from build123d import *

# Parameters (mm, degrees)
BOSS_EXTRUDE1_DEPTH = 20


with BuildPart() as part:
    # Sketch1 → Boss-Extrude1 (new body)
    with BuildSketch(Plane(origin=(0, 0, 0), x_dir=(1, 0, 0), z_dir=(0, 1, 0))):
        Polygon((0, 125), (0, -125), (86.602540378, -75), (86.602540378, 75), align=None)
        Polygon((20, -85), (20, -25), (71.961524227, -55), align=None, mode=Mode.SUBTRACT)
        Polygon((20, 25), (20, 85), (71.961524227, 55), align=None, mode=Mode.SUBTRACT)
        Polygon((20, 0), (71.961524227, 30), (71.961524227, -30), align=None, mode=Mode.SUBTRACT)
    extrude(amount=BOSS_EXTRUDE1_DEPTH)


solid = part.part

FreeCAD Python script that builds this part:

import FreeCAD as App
import Part
import Sketcher
Q = App.Units.Quantity

doc = App.newDocument("Part")
params = doc.addObject("Spreadsheet::Sheet", "Params")
for row, (alias, value) in enumerate([
    ("sketch1_height", "250 mm"),
    ("sketch1_height2", "150 mm"),
    ("sketch1_height3", "60 mm"),
    ("pad1_length", "20 mm"),
], start=1):
    params.set(f"A{row}", alias)
    params.set(f"B{row}", "=" + value)
    params.setAlias(f"B{row}", alias)

body = doc.addObject("PartDesign::Body", "Body")

sketch1 = doc.addObject("Sketcher::SketchObject", "Sketch")
body.addObject(sketch1)
sketch1.AttachmentSupport = (doc.XZ_Plane, [""])
sketch1.MapMode = "FlatFace"
sketch1.addGeometry(Part.LineSegment(App.Vector(0, -125, 0), App.Vector(0, 125, 0)), False)
sketch1.addGeometry(Part.LineSegment(App.Vector(0, 125, 0), App.Vector(86.60254, 75, 0)), False)
sketch1.addGeometry(Part.LineSegment(App.Vector(86.60254, 75, 0), App.Vector(86.60254, -75, 0)), False)
sketch1.addGeometry(Part.LineSegment(App.Vector(86.60254, -75, 0), App.Vector(0, -125, 0)), False)
sketch1.addGeometry(Part.LineSegment(App.Vector(71.961524, 55, 0), App.Vector(20, 85, 0)), False)
sketch1.addGeometry(Part.LineSegment(App.Vector(20, 85, 0), App.Vector(20, 25, 0)), False)
sketch1.addGeometry(Part.LineSegment(App.Vector(20, 25, 0), App.Vector(71.961524, 55, 0)), False)
sketch1.addGeometry(Part.LineSegment(App.Vector(71.961524, 30, 0), App.Vector(20, 0, 0)), False)
sketch1.addGeometry(Part.LineSegment(App.Vector(20, 0, 0), App.Vector(71.961524, -30, 0)), False)
sketch1.addGeometry(Part.LineSegment(App.Vector(71.961524, -30, 0), App.Vector(71.961524, 30, 0)), False)
sketch1.addGeometry(Part.LineSegment(App.Vector(71.961524, -55, 0), App.Vector(20, -25, 0)), False)
sketch1.addGeometry(Part.LineSegment(App.Vector(20, -25, 0), App.Vector(20, -85, 0)), False)
sketch1.addGeometry(Part.LineSegment(App.Vector(20, -85, 0), App.Vector(71.961524, -55, 0)), False)
sketch1.addConstraint(Sketcher.Constraint("Coincident", 0, 2, 1, 1))
sketch1.addConstraint(Sketcher.Constraint("Coincident", 1, 2, 2, 1))
sketch1.addConstraint(Sketcher.Constraint("Coincident", 2, 2, 3, 1))
sketch1.addConstraint(Sketcher.Constraint("Coincident", 3, 2, 0, 1))
sketch1.addConstraint(Sketcher.Constraint("Coincident", 4, 2, 5, 1))
sketch1.addConstraint(Sketcher.Constraint("Coincident", 5, 2, 6, 1))
sketch1.addConstraint(Sketcher.Constraint("Coincident", 6, 2, 4, 1))
sketch1.addConstraint(Sketcher.Constraint("Coincident", 7, 2, 8, 1))
sketch1.addConstraint(Sketcher.Constraint("Coincident", 8, 2, 9, 1))
sketch1.addConstraint(Sketcher.Constraint("Coincident", 9, 2, 7, 1))
sketch1.addConstraint(Sketcher.Constraint("Coincident", 10, 2, 11, 1))
sketch1.addConstraint(Sketcher.Constraint("Coincident", 11, 2, 12, 1))
sketch1.addConstraint(Sketcher.Constraint("Coincident", 12, 2, 10, 1))
sketch1.addConstraint(Sketcher.Constraint("Vertical", 0))
sketch1.addConstraint(Sketcher.Constraint("Vertical", 2))
sketch1.addConstraint(Sketcher.Constraint("Vertical", 5))
sketch1.addConstraint(Sketcher.Constraint("Vertical", 9))
sketch1.addConstraint(Sketcher.Constraint("Vertical", 11))
sketch1.addConstraint(Sketcher.Constraint("Symmetric", 0, 2, 3, 2, -1, 1))
sketch1.addConstraint(Sketcher.Constraint("Symmetric", 5, 2, 10, 2, -1))
sketch1.addConstraint(Sketcher.Constraint("Symmetric", 6, 2, 12, 2, -1))
sketch1.addConstraint(Sketcher.Constraint("PointOnObject", 7, 2, -1))
sketch1.addConstraint(Sketcher.Constraint("Parallel", 1, 4))
sketch1.addConstraint(Sketcher.Constraint("Parallel", 3, 6))
sketch1.addConstraint(Sketcher.Constraint("Parallel", 6, 7))
sketch1.addConstraint(Sketcher.Constraint("Parallel", 4, 8))
sketch1.addConstraint(Sketcher.Constraint("Parallel", 8, 10))
sketch1.addConstraint(Sketcher.Constraint("Parallel", 7, 12))
sketch1.addConstraint(Sketcher.Constraint("Vertical", 5, 2, 7, 2))
sketch1.addConstraint(Sketcher.Constraint("Vertical", 6, 2, 8, 2))
sketch1.addConstraint(Sketcher.Constraint("DistanceY", 0, 1, 0, 2, Q("250 mm")))
sketch1.addConstraint(Sketcher.Constraint("DistanceY", 2, 2, 2, 1, Q("150 mm")))
sketch1.addConstraint(Sketcher.Constraint("DistanceY", 5, 2, 5, 1, Q("60 mm")))
sketch1.addConstraint(Sketcher.Constraint("Angle", 1, Q("-30 deg")))
sketch1.addConstraint(Sketcher.Constraint("DistanceX", -1, 1, 4, 2, Q("20 mm")))
sketch1.addConstraint(Sketcher.Constraint("DistanceY", -1, 1, 4, 2, Q("85 mm")))
sketch1.setExpression("Constraints[30]", "Params.sketch1_height")
sketch1.setExpression("Constraints[31]", "Params.sketch1_height2")
sketch1.setExpression("Constraints[32]", "Params.sketch1_height3")
pad1 = doc.addObject("PartDesign::Pad", "Pad")
body.addObject(pad1)
pad1.Profile = sketch1
pad1.setExpression("Length", "Params.pad1_length")
pad1.Reversed = True

doc.recompute()
